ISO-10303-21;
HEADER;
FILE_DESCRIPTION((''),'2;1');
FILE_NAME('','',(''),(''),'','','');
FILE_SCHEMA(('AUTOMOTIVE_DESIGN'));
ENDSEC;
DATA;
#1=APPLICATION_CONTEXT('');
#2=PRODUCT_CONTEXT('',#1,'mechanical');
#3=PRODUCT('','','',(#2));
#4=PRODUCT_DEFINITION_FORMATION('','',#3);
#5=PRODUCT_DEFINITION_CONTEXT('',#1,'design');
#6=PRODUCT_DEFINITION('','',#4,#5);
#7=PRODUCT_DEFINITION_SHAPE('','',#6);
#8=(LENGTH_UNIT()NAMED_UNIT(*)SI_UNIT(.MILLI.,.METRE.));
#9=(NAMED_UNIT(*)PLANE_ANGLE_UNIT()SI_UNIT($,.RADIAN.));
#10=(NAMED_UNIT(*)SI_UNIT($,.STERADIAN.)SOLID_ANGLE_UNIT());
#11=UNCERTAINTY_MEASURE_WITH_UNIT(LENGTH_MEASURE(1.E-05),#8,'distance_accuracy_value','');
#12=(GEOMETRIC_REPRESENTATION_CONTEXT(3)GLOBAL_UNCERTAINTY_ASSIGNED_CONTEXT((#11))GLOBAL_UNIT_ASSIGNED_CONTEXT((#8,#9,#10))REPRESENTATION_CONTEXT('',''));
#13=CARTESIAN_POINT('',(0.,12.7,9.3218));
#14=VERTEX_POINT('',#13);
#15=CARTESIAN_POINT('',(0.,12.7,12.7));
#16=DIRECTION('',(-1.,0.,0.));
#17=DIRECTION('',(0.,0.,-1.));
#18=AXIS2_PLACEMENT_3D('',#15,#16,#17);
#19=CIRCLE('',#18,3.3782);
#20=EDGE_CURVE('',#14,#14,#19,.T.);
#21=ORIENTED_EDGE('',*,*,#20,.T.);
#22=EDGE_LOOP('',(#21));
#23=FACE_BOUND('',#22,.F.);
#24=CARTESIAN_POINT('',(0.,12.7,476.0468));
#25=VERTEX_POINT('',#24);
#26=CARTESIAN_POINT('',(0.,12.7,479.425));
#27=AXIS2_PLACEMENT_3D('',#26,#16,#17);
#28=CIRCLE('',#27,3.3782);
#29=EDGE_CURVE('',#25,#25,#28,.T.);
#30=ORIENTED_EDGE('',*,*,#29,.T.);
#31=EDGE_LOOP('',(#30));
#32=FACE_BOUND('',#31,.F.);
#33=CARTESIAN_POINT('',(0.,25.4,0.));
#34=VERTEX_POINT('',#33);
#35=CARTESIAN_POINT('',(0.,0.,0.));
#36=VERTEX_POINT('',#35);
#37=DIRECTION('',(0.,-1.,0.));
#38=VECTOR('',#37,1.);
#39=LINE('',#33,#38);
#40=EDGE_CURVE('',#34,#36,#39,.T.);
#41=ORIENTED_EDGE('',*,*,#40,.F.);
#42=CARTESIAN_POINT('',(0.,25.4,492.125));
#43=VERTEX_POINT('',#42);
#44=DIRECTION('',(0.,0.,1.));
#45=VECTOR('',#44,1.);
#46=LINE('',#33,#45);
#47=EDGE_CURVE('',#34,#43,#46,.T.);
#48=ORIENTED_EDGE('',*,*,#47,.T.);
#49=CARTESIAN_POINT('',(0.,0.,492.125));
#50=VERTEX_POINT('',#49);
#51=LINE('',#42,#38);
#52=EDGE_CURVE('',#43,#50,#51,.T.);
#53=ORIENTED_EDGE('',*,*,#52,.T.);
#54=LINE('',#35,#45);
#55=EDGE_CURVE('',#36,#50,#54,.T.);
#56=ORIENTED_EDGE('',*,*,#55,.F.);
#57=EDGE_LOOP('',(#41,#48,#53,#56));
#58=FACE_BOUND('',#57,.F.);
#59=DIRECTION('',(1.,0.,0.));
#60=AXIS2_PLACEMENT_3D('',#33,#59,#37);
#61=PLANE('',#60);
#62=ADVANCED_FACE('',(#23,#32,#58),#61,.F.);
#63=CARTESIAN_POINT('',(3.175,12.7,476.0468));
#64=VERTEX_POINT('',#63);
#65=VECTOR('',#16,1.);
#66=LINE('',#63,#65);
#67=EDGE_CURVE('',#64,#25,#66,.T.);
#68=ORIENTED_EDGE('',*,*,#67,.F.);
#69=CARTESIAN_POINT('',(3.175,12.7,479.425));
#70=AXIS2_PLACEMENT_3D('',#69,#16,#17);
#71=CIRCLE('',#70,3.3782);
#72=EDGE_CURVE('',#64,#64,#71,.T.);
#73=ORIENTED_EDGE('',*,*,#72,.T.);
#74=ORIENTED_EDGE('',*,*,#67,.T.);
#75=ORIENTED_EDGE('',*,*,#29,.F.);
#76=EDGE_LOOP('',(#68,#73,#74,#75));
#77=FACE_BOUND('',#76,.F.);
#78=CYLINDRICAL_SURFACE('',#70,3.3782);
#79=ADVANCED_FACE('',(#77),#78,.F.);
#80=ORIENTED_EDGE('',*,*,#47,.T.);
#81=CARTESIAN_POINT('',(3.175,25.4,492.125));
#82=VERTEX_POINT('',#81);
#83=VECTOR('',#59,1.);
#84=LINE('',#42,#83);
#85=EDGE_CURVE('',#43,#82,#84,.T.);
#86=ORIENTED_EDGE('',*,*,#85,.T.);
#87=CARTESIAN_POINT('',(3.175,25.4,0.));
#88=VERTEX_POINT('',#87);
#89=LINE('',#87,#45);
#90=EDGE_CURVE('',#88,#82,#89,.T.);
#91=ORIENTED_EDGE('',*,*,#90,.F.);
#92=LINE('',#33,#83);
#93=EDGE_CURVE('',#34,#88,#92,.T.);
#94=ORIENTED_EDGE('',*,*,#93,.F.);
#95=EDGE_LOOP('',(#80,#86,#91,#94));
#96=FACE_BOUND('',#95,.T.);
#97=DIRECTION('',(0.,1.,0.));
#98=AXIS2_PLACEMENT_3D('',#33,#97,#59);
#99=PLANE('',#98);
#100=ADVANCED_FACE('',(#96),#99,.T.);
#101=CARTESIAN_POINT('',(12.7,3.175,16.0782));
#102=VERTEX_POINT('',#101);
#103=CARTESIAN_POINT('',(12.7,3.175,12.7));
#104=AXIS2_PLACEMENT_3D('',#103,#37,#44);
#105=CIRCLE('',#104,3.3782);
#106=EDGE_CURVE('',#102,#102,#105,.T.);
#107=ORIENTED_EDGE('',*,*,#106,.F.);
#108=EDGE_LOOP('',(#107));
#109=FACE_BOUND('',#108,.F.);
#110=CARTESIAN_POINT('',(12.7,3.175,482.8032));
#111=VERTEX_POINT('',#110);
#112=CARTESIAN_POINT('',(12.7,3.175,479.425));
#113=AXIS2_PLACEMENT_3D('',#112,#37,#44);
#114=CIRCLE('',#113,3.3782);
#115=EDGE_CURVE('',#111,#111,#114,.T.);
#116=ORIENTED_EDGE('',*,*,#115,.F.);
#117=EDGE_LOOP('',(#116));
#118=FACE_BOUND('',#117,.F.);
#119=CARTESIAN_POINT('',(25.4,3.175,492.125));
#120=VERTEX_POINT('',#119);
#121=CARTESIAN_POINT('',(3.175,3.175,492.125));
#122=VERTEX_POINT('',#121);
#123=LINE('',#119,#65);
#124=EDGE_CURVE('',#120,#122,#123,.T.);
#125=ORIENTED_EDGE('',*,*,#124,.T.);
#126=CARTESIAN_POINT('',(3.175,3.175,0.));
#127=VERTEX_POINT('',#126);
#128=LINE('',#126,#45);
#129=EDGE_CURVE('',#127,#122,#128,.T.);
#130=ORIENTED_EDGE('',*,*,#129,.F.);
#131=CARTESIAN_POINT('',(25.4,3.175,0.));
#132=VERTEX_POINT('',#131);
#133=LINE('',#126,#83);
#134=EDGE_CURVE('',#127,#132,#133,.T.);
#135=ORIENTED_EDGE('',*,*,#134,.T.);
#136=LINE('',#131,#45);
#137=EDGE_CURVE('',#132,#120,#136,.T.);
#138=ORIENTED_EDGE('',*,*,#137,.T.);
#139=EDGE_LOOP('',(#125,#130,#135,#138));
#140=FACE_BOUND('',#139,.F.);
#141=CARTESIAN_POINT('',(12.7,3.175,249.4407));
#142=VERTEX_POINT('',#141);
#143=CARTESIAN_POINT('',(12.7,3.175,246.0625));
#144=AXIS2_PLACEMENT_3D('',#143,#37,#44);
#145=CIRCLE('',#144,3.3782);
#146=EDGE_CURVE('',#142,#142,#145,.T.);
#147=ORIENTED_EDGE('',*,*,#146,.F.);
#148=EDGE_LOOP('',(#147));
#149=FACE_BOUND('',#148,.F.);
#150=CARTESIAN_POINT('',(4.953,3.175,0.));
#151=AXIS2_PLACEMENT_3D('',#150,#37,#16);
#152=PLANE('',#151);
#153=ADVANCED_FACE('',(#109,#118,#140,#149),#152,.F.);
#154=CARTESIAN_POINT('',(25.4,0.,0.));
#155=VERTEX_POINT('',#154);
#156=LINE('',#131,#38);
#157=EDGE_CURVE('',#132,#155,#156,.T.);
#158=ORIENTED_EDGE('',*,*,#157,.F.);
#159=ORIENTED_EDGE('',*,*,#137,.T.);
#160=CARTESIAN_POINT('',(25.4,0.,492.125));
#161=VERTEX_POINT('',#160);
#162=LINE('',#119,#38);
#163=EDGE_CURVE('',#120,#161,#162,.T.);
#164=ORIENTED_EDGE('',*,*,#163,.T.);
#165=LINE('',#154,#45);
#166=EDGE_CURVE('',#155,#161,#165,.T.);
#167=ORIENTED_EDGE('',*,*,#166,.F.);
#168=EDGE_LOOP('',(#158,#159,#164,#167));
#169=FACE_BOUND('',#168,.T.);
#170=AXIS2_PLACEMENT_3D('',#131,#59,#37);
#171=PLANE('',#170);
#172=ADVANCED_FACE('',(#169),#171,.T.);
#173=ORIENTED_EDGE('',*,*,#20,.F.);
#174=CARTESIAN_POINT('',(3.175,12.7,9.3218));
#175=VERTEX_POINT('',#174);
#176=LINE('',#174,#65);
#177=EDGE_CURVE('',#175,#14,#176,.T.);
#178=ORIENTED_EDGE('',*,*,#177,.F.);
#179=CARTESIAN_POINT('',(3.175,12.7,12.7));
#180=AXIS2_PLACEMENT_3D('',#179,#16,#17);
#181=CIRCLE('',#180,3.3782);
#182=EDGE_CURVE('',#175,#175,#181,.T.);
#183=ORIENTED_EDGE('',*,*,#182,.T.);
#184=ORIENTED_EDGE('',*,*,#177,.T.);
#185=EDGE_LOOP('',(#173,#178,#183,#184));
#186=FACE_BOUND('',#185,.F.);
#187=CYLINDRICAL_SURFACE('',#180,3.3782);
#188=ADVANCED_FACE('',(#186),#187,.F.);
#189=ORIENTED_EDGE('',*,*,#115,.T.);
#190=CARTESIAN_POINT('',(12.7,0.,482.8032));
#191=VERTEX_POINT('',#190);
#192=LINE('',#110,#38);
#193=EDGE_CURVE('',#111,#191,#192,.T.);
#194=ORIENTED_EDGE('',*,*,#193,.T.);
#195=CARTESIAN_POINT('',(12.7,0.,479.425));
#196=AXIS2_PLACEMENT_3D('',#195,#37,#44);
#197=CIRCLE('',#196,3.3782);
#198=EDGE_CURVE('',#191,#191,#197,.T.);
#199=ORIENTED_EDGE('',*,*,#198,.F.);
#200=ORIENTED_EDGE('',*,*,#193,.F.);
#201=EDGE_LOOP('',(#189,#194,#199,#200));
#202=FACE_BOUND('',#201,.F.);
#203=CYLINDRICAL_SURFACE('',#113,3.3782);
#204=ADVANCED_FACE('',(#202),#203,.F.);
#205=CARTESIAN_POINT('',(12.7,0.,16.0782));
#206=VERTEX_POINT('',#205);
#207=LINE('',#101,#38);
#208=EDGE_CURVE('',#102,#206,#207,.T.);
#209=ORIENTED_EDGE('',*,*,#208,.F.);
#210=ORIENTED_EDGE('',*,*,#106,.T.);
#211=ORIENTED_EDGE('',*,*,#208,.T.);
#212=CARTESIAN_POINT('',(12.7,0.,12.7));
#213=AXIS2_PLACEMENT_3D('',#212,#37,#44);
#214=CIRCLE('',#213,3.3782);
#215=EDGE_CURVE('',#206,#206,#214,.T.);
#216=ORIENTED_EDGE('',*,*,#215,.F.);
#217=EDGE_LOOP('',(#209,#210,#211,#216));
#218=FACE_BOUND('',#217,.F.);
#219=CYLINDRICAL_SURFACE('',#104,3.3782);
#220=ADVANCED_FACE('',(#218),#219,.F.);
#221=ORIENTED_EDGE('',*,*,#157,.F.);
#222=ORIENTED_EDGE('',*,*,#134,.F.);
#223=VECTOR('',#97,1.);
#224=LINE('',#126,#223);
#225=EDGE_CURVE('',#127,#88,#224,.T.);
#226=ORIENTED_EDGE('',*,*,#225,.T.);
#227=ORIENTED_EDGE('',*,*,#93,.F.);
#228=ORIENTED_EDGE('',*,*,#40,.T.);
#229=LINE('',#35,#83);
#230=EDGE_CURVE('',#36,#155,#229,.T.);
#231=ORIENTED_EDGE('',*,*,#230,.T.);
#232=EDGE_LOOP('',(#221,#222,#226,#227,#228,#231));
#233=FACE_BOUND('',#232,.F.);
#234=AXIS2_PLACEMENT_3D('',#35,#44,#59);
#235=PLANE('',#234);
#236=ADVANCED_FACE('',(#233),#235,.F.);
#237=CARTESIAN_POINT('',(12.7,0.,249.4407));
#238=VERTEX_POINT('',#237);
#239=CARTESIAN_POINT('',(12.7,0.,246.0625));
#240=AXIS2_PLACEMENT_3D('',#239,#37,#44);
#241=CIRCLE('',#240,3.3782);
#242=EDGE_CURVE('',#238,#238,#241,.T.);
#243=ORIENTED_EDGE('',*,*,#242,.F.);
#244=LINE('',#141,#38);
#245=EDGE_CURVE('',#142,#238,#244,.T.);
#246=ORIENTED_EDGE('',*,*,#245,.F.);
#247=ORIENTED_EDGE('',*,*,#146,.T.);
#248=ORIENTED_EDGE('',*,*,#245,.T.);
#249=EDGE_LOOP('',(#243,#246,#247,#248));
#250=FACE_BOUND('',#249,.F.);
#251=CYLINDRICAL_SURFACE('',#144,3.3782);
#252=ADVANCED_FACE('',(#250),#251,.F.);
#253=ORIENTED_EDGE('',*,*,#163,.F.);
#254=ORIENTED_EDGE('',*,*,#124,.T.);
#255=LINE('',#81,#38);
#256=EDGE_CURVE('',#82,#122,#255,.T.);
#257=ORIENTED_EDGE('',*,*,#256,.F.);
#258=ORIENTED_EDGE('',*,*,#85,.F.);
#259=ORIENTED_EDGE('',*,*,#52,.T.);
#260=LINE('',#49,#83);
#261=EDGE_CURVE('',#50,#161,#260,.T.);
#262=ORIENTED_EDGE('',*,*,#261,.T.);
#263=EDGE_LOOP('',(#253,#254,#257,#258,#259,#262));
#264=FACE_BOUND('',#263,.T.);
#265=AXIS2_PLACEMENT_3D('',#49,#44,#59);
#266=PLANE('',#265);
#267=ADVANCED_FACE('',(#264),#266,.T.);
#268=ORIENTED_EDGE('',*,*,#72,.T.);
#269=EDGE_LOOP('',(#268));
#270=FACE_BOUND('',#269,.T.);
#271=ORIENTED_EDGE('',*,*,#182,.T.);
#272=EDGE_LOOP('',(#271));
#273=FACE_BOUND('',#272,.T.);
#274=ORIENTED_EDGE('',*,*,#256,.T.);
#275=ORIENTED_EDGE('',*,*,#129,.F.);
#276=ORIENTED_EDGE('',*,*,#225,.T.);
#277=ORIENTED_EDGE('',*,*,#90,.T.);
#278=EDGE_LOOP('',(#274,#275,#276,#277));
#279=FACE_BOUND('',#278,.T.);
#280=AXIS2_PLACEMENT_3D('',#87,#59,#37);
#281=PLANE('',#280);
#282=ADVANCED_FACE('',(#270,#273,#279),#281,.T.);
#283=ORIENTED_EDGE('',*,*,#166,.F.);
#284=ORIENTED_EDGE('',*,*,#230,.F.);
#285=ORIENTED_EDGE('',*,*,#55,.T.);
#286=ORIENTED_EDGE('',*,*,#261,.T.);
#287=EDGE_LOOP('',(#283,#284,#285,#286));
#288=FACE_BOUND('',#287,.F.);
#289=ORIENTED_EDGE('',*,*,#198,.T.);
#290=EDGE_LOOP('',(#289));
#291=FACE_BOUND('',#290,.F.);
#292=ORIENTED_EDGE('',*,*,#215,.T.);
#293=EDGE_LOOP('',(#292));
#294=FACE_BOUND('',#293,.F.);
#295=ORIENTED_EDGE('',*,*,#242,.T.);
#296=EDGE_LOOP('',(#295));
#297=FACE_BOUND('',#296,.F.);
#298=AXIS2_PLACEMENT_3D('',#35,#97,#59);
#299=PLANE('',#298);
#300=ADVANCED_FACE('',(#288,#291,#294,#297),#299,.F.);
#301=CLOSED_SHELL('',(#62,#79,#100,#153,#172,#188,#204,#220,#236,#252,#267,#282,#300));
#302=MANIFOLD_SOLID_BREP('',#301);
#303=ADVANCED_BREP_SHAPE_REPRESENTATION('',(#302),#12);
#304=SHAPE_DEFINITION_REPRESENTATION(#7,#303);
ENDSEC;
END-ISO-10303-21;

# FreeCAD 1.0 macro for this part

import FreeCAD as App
import Part
import Sketcher

V = App.Vector
Q = App.Units.Quantity


def add_polygon(sketch, points):
    """Adds a closed chain of lines whose ends are joined by coincident constraints."""
    first, n = sketch.GeometryCount, len(points)
    for a, b in zip(points, points[1:] + points[:1]):
        sketch.addGeometry(Part.LineSegment(App.Vector(*a, 0), App.Vector(*b, 0)), False)
    for i in range(n):
        sketch.addConstraint(Sketcher.Constraint("Coincident", first + i, 2, first + (i + 1) % n, 1))

doc = App.newDocument("Part")
body = doc.addObject("PartDesign::Body", "Body")

sketch1 = body.newObject("Sketcher::SketchObject", "Sketch")
sketch1.AttachmentSupport = (doc.getObject("XY_Plane"), [""])
sketch1.MapMode = "FlatFace"
add_polygon(sketch1, [(3.175, 25.4), (0, 25.4), (0, 0), (25.4, 0), (25.4, 3.175), (3.175, 3.175)])
sketch1.addConstraint([
    Sketcher.Constraint("Horizontal", 0),
    Sketcher.Constraint("Vertical", 1),
    Sketcher.Constraint("Horizontal", 2),
    Sketcher.Constraint("Vertical", 3),
    Sketcher.Constraint("Horizontal", 4),
    Sketcher.Constraint("Vertical", 5),
    Sketcher.Constraint("Coincident", 1, 2, -1, 1),
    Sketcher.Constraint("Equal", 2, 1),
    Sketcher.Constraint("Equal", 0, 3),
    Sketcher.Constraint("DistanceX", 2, 1, 2, 2, Q("1 in")),
    Sketcher.Constraint("DistanceX", 0, 2, 0, 1, Q("0.125 in")),
])
pad1 = body.newObject("PartDesign::Pad", "Pad")
pad1.Profile = sketch1
pad1.Length = Q("19.375 in")

sketch2 = body.newObject("Sketcher::SketchObject", "Sketch001")
sketch2.AttachmentSupport = (doc.getObject("XZ_Plane"), [""])
sketch2.MapMode = "FlatFace"
sketch2.AttachmentOffset = App.Placement(V(0, 0, -0.125 * 25.4), App.Rotation())
sketch2.addGeometry([
    Part.Circle(V(12.7, 479.425, 0), V(0, 0, 1), 3.3782),
    Part.Circle(V(12.7, 12.7, 0), V(0, 0, 1), 3.3782),
], False)
sketch2.addConstraint([
    Sketcher.Constraint("Equal", 0, 1),
    Sketcher.Constraint("Vertical", 0, 3, 1, 3),
    Sketcher.Constraint("Diameter", 0, Q("0.266 in")),
    Sketcher.Constraint("DistanceX", -1, 1, 0, 3, Q("0.5 in")),
    Sketcher.Constraint("DistanceY", -1, 1, 1, 3, Q("0.5 in")),
    Sketcher.Constraint("DistanceY", -1, 1, 0, 3, Q("18.875 in")),
])
doc.recompute()
hole = body.newObject("PartDesign::Hole", "Hole")
hole.Profile = sketch2
hole.ThreadType = "None"
hole.Diameter = Q("0.266 in")
hole.DepthType = "Dimension"
hole.Depth = Q("1 in")
hole.DrillPoint = "Angled"
hole.DrillPointAngle = 118
hole.Reversed = True

sketch3 = body.newObject("Sketcher::SketchObject", "Sketch002")
sketch3.AttachmentSupport = (doc.getObject("YZ_Plane"), [""])
sketch3.MapMode = "FlatFace"
sketch3.AttachmentOffset = App.Placement(V(0, 0, 0.125 * 25.4), App.Rotation())
sketch3.addGeometry([
    Part.Circle(V(12.7, 479.425, 0), V(0, 0, 1), 3.3782),
    Part.Circle(V(12.7, 12.7, 0), V(0, 0, 1), 3.3782),
], False)
sketch3.addConstraint([
    Sketcher.Constraint("Equal", 0, 1),
    Sketcher.Constraint("Vertical", 0, 3, 1, 3),
    Sketcher.Constraint("Diameter", 0, Q("0.266 in")),
    Sketcher.Constraint("DistanceX", -1, 1, 0, 3, Q("0.5 in")),
    Sketcher.Constraint("DistanceY", -1, 1, 1, 3, Q("0.5 in")),
    Sketcher.Constraint("DistanceY", -1, 1, 0, 3, Q("18.875 in")),
])
doc.recompute()
hole2 = body.newObject("PartDesign::Hole", "Hole001")
hole2.Profile = sketch3
hole2.ThreadType = "None"
hole2.Diameter = Q("0.266 in")
hole2.DepthType = "Dimension"
hole2.Depth = Q("1 in")
hole2.DrillPoint = "Angled"
hole2.DrillPointAngle = 118

sketch4 = body.newObject("Sketcher::SketchObject", "Sketch003")
sketch4.AttachmentSupport = (doc.getObject("XZ_Plane"), [""])
sketch4.MapMode = "FlatFace"
sketch4.AttachmentOffset = App.Placement(V(0, 0, -0.125 * 25.4), App.Rotation())
sketch4.addGeometry(Part.Circle(V(12.7, 246.0625, 0), V(0, 0, 1), 3.3782), False)
sketch4.addConstraint([
    Sketcher.Constraint("Diameter", 0, Q("0.266 in")),
    Sketcher.Constraint("DistanceX", -1, 1, 0, 3, Q("0.5 in")),
    Sketcher.Constraint("DistanceY", -1, 1, 0, 3, Q("9.6875 in")),
])
doc.recompute()
hole3 = body.newObject("PartDesign::Hole", "Hole002")
hole3.Profile = sketch4
hole3.ThreadType = "None"
hole3.Diameter = Q("0.266 in")
hole3.DepthType = "Dimension"
hole3.Depth = Q("1 in")
hole3.DrillPoint = "Angled"
hole3.DrillPointAngle = 118
hole3.Reversed = True

doc.recompute()
